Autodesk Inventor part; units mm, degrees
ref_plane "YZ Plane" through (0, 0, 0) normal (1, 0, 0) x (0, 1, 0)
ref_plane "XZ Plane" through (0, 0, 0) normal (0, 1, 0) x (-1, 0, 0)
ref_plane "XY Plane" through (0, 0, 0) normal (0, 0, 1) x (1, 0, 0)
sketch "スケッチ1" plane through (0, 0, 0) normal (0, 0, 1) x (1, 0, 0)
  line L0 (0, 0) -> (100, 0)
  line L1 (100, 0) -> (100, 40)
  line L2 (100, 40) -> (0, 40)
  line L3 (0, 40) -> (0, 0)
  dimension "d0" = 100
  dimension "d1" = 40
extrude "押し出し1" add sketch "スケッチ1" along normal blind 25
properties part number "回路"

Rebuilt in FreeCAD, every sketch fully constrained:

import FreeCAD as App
import Part
import Sketcher
Q = App.Units.Quantity


def add_polygon(sketch, points):
    """Adds a closed chain of lines whose ends are joined by coincident constraints."""
    first, n = sketch.GeometryCount, len(points)
    for a, b in zip(points, points[1:] + points[:1]):
        sketch.addGeometry(Part.LineSegment(App.Vector(*a, 0), App.Vector(*b, 0)), False)
    for i in range(n):
        sketch.addConstraint(Sketcher.Constraint("Coincident", first + i, 2, first + (i + 1) % n, 1))

doc = App.newDocument("Part")
body = doc.addObject("PartDesign::Body", "Body")

# Sketch on XY plane
sketch1 = body.newObject("Sketcher::SketchObject", "Sketch")
sketch1.AttachmentSupport = (doc.getObject("XY_Plane"), [""])
sketch1.MapMode = "FlatFace"
add_polygon(sketch1, [(0, 40), (0, 0), (100, 0), (100, 40)])  # lines 0-3
sketch1.addConstraint([
    Sketcher.Constraint("Vertical", 0),
    Sketcher.Constraint("Horizontal", 1),
    Sketcher.Constraint("Vertical", 2),
    Sketcher.Constraint("Horizontal", 3),
    Sketcher.Constraint("Coincident", 0, 2, -1, 1),
    Sketcher.Constraint("DistanceX", 1, 1, 1, 2, Q("100 mm")),
    Sketcher.Constraint("DistanceY", 0, 2, 0, 1, Q("40 mm")),
])
pad1 = body.newObject("PartDesign::Pad", "Pad")
pad1.Profile = sketch1
pad1.Length = 25

doc.recompute()
